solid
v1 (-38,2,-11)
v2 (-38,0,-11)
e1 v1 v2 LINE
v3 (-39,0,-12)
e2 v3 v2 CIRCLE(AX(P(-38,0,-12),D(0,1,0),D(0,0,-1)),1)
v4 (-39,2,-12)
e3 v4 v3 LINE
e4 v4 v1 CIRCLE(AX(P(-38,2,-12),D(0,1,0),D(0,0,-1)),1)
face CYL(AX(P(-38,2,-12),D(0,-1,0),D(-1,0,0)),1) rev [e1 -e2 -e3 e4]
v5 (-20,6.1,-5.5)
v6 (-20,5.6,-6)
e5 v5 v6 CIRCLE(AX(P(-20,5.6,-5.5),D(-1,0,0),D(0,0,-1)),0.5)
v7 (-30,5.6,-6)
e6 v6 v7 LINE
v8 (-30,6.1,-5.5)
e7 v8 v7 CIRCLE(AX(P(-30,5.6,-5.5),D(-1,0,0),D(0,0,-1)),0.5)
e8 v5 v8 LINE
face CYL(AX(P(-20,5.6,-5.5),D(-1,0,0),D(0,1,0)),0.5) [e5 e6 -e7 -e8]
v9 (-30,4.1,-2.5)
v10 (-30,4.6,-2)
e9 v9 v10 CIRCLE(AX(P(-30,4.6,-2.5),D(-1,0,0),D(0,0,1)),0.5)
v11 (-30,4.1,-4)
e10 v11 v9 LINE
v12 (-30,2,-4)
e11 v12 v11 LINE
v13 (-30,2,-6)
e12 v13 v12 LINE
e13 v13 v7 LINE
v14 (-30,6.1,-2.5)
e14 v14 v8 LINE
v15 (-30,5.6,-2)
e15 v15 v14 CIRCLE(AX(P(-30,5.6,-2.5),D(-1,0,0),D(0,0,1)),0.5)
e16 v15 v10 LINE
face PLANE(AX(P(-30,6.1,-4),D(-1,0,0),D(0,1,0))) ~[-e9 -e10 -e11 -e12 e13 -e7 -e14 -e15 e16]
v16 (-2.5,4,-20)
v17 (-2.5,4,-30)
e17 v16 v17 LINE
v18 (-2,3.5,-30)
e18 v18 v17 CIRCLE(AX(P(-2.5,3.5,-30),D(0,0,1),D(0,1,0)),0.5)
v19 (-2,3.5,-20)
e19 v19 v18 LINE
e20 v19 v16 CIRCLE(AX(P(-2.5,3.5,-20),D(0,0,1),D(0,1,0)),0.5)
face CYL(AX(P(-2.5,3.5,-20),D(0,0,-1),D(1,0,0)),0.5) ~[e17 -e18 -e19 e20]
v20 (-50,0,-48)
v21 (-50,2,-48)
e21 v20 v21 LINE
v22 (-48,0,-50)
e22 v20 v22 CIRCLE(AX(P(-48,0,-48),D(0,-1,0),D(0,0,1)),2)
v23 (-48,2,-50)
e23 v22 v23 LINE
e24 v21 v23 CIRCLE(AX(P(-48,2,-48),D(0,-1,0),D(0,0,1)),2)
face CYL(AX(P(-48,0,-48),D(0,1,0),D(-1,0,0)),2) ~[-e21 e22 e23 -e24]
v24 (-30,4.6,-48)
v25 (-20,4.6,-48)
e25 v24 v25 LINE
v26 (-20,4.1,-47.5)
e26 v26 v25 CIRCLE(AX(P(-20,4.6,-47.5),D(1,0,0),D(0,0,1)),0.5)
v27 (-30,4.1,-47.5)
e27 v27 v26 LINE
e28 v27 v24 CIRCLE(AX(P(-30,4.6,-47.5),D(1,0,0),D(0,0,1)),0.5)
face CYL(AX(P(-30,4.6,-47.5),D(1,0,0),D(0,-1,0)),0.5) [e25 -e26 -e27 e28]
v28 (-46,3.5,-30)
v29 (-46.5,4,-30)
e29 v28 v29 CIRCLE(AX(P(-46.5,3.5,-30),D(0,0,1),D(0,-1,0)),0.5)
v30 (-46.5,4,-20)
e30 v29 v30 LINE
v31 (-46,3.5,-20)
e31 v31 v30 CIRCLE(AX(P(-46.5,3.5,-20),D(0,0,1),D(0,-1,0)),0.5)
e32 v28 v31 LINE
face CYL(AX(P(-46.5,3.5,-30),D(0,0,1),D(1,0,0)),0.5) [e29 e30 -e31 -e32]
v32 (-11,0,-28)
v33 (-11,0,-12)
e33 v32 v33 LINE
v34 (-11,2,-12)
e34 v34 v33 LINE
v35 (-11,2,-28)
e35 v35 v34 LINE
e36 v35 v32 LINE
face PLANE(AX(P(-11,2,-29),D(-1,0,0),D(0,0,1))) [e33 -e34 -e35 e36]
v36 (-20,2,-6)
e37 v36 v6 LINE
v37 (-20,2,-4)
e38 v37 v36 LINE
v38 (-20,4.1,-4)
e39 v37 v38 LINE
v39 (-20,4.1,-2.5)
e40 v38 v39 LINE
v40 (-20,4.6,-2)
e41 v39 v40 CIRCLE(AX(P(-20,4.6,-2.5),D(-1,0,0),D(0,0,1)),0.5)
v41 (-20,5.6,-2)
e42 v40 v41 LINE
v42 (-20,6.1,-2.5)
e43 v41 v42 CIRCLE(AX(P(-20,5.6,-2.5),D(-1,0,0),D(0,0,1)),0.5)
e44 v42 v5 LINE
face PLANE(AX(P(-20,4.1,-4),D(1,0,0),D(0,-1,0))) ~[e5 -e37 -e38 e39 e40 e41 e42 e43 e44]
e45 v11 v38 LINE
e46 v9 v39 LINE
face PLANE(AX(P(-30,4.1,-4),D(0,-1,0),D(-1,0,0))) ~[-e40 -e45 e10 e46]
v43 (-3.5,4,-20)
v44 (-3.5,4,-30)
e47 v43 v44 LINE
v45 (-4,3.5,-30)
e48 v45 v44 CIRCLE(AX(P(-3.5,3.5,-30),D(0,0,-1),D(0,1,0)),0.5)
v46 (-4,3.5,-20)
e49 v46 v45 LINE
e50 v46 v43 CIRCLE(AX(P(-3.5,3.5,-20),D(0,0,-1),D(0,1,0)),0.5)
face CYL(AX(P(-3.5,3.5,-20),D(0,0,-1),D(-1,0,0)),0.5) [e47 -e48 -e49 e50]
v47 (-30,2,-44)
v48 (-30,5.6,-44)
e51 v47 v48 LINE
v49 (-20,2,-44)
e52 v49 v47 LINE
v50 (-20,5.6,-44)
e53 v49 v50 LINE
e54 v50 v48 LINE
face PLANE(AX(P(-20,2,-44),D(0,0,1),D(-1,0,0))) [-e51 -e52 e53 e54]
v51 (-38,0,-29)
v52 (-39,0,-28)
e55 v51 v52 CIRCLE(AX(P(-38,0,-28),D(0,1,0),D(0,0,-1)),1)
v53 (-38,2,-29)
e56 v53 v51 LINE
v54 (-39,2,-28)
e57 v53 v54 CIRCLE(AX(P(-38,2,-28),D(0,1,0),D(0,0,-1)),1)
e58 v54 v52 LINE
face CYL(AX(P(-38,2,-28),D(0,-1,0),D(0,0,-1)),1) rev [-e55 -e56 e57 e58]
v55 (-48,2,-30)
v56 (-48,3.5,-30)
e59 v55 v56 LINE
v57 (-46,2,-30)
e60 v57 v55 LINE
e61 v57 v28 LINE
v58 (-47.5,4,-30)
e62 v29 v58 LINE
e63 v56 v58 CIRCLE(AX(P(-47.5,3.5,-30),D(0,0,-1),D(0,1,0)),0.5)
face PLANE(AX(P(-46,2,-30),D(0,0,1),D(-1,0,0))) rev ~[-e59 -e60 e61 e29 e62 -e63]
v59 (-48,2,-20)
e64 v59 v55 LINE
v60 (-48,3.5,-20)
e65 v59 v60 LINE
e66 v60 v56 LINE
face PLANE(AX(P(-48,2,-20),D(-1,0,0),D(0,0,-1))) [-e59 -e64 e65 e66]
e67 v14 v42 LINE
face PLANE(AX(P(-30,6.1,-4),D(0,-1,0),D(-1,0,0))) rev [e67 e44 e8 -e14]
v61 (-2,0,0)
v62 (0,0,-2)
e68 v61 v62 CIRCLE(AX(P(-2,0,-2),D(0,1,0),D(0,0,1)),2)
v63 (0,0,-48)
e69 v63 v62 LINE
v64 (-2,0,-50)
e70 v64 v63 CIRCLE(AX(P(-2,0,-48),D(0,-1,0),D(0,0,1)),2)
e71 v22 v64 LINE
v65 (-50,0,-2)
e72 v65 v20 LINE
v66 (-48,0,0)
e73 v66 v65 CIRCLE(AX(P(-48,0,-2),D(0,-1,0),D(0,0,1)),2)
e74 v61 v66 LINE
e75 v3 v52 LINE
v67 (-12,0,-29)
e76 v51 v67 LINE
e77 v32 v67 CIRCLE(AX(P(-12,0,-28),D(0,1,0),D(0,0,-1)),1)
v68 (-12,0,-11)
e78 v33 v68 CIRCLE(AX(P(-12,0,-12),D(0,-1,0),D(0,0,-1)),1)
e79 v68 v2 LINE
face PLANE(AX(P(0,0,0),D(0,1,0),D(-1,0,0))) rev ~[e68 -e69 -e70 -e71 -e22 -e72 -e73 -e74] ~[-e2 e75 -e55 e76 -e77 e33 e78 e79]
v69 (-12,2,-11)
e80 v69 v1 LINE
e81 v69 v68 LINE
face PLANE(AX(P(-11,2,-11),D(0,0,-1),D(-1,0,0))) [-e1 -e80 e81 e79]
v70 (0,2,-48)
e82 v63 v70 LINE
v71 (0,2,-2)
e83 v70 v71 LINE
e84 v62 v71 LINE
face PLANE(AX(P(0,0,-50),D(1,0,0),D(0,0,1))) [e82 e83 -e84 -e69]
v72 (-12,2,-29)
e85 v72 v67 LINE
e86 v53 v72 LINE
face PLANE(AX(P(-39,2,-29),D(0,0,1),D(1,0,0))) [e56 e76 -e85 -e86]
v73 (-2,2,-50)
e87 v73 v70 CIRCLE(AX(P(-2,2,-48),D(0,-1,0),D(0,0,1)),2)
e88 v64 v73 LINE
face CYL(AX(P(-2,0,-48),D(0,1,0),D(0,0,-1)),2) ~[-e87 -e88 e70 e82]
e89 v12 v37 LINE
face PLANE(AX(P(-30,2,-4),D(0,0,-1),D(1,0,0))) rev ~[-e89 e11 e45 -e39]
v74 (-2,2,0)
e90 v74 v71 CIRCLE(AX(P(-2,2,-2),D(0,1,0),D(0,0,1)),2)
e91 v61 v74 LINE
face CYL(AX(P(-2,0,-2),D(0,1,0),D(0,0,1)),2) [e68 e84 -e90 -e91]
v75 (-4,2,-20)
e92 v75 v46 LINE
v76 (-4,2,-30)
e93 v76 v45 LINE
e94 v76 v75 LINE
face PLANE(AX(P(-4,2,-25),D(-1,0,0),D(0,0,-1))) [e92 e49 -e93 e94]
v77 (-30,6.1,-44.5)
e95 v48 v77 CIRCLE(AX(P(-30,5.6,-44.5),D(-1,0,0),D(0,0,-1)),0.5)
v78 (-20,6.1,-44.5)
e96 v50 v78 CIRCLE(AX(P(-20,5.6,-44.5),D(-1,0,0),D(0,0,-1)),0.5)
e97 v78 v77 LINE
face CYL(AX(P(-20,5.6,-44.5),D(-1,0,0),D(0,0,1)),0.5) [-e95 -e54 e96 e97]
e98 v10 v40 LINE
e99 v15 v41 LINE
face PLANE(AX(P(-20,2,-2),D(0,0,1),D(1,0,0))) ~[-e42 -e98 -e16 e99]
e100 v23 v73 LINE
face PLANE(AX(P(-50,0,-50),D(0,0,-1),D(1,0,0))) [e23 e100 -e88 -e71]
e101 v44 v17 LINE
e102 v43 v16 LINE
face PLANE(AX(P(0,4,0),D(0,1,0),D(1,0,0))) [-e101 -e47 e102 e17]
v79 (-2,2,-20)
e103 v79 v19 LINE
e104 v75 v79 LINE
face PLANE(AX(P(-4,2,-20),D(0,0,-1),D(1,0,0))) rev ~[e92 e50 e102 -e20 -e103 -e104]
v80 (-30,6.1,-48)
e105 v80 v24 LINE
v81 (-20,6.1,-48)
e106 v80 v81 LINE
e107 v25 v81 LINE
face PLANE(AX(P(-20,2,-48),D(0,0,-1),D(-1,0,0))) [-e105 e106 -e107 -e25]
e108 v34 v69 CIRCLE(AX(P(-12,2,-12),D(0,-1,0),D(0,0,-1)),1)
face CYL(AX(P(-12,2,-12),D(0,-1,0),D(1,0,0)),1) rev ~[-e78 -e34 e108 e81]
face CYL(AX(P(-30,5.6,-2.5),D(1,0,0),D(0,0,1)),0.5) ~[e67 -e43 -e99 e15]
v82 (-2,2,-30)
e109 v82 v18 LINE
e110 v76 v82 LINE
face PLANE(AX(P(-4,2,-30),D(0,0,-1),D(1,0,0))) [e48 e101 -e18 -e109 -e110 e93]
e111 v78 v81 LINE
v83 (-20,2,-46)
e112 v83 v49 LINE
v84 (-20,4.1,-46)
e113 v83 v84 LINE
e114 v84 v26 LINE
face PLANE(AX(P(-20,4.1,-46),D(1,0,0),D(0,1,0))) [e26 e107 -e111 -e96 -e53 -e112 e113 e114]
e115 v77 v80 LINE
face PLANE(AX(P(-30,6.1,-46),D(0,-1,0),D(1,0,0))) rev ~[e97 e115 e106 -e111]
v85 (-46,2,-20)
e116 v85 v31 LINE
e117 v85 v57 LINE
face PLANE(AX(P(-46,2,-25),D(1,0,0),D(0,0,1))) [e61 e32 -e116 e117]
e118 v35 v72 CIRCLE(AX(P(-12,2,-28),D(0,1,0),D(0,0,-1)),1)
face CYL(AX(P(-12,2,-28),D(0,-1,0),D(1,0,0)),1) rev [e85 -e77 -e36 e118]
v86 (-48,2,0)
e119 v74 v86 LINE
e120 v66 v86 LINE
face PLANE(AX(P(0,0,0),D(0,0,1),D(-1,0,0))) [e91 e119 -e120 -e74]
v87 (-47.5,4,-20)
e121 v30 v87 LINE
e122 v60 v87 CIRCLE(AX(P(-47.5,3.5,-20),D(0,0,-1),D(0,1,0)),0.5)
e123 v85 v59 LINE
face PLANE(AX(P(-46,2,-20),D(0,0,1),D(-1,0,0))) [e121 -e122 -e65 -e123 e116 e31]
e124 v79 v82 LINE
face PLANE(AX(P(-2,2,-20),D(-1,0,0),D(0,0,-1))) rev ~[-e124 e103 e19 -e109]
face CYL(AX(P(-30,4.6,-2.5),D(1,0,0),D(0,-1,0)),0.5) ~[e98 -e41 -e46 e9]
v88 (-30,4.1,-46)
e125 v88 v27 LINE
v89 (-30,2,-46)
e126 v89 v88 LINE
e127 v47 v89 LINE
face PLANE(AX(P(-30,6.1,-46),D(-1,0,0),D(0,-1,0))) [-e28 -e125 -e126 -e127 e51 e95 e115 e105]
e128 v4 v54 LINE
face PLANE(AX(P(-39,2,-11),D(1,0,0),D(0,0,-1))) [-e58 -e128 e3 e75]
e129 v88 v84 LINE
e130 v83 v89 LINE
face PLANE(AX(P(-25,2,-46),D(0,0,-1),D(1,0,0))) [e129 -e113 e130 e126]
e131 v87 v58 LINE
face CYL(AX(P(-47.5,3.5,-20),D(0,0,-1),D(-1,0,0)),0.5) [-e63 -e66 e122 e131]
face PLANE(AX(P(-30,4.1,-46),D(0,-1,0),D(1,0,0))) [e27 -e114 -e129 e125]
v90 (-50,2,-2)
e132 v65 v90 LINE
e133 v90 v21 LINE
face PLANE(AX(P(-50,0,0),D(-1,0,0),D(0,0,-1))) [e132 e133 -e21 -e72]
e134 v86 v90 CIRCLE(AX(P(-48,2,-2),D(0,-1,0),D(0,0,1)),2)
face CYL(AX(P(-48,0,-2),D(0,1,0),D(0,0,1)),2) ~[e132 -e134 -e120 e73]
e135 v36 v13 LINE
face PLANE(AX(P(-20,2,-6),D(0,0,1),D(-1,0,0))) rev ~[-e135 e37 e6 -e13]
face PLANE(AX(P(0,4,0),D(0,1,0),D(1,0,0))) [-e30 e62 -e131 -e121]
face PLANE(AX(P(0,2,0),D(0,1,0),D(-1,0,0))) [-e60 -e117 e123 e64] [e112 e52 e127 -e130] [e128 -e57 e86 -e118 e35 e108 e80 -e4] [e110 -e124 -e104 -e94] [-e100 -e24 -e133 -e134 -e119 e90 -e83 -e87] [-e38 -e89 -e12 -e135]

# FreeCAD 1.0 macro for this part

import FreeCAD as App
import Part
import Sketcher

V = App.Vector
Q = App.Units.Quantity


def edges_at(feature, points):
    """Names of the edges that pass closest to the given points."""
    edges = feature.Shape.Edges
    near = lambda p: min(range(len(edges)), key=lambda i: edges[i].distToShape(Part.Vertex(*p))[0])
    return sorted({f"Edge{near(p) + 1}" for p in points})


def add_polygon(sketch, points):
    """Adds a closed chain of lines whose ends are joined by coincident constraints."""
    first, n = sketch.GeometryCount, len(points)
    for a, b in zip(points, points[1:] + points[:1]):
        sketch.addGeometry(Part.LineSegment(App.Vector(*a, 0), App.Vector(*b, 0)), False)
    for i in range(n):
        sketch.addConstraint(Sketcher.Constraint("Coincident", first + i, 2, first + (i + 1) % n, 1))

doc = App.newDocument("Part")
params = doc.addObject("Spreadsheet::Sheet", "Params")
for row, (alias, value) in enumerate([
    ("sketch1_width", "50 mm"),
    ("pad1_length", "2 mm"),
    ("fillet_radius", "2 mm"),
    ("sketch2_width", "2 mm"),
    ("sketch2_height", "10 mm"),
    ("pad2_length", "2 mm"),
    ("sketch3_width", "10 mm"),
    ("sketch3_height", "2 mm"),
    ("pad3_length", "4.1 mm"),
    ("sketch4_width", "10 mm"),
    ("sketch4_height", "2 mm"),
    ("pad4_length", "2 mm"),
    ("fillet2_radius", "0.5 mm"),
    ("fillet3_radius", "0.5 mm"),
    ("fillet4_radius", "0.5 mm"),
    ("sketch5_width", "28 mm"),
    ("sketch5_height", "18 mm"),
    ("pocket1_length", "2 mm"),
    ("fillet5_radius", "1 mm"),
], start=1):
    params.set(f"A{row}", alias)
    params.set(f"B{row}", "=" + value)
    params.setAlias(f"B{row}", alias)

body = doc.addObject("PartDesign::Body", "Body")

# Sketch on XZ plane
sketch1 = body.newObject("Sketcher::SketchObject", "Sketch")
sketch1.AttachmentSupport = (doc.getObject("XZ_Plane"), [""])
sketch1.MapMode = "FlatFace"
add_polygon(sketch1, [(-50, 0), (0, 0), (0, -50), (-50, -50)])  # lines 0-3
sketch1.addConstraint([
    Sketcher.Constraint("Horizontal", 0),
    Sketcher.Constraint("Vertical", 1),
    Sketcher.Constraint("Horizontal", 2),
    Sketcher.Constraint("Vertical", 3),
    Sketcher.Constraint("Coincident", 0, 2, -1, 1),
    Sketcher.Constraint("Equal", 2, 1),
    Sketcher.Constraint("DistanceX", 0, 1, 0, 2, Q("50 mm")),
])
sketch1.setExpression("Constraints[10]", "Params.sketch1_width")
pad1 = body.newObject("PartDesign::Pad", "Pad")
pad1.Profile = sketch1
pad1.setExpression("Length", "Params.pad1_length")
pad1.Reversed = True
doc.recompute()

fillet = body.newObject("PartDesign::Fillet", "Fillet")
fillet.Base = (pad1, edges_at(pad1, [
    (0, 1, 0),
    (0, 1, -50),
    (-50, 1, 0),
    (-50, 1, -50),
]))
fillet.setExpression("Radius", "Params.fillet_radius")

# Sketch on XZ plane
sketch2 = body.newObject("Sketcher::SketchObject", "Sketch001")
sketch2.AttachmentSupport = (doc.getObject("XZ_Plane"), [""])
sketch2.MapMode = "FlatFace"
sketch2.AttachmentOffset = App.Placement(V(0, 0, -2), App.Rotation())
add_polygon(sketch2, [(-46, -20), (-46, -30), (-48, -30), (-48, -20)])  # lines 0-3
add_polygon(sketch2, [(-4, -30), (-4, -20), (-2, -20), (-2, -30)])  # lines 4-7
sketch2.addConstraint([
    Sketcher.Constraint("Vertical", 0),
    Sketcher.Constraint("Horizontal", 1),
    Sketcher.Constraint("Vertical", 2),
    Sketcher.Constraint("Horizontal", 3),
    Sketcher.Constraint("Vertical", 4),
    Sketcher.Constraint("Horizontal", 5),
    Sketcher.Constraint("Vertical", 6),
    Sketcher.Constraint("Horizontal", 7),
    Sketcher.Constraint("Horizontal", 3, 2, 4, 2),
    Sketcher.Constraint("Horizontal", 1, 2, 6, 2),
    Sketcher.Constraint("Equal", 3, 5),
    Sketcher.Constraint("DistanceX", 1, 2, 1, 1, Q("2 mm")),
    Sketcher.Constraint("DistanceY", 0, 2, 0, 1, Q("10 mm")),
    Sketcher.Constraint("DistanceX", 4, 2, -1, 1, Q("4 mm")),
    Sketcher.Constraint("DistanceX", 0, 2, -1, 1, Q("46 mm")),
    Sketcher.Constraint("DistanceY", 0, 2, -1, 1, Q("30 mm")),
])
sketch2.setExpression("Constraints[19]", "Params.sketch2_width")
sketch2.setExpression("Constraints[20]", "Params.sketch2_height")
pad2 = body.newObject("PartDesign::Pad", "Pad001")
pad2.Profile = sketch2
pad2.setExpression("Length", "Params.pad2_length")
pad2.Reversed = True

# Sketch on XZ plane
sketch3 = body.newObject("Sketcher::SketchObject", "Sketch002")
sketch3.AttachmentSupport = (doc.getObject("XZ_Plane"), [""])
sketch3.MapMode = "FlatFace"
sketch3.AttachmentOffset = App.Placement(V(0, 0, -2), App.Rotation())
add_polygon(sketch3, [(-30, -4), (-20, -4), (-20, -6), (-30, -6)])  # lines 0-3
add_polygon(sketch3, [(-20, -46), (-30, -46), (-30, -44), (-20, -44)])  # lines 4-7
sketch3.addConstraint([
    Sketcher.Constraint("Horizontal", 0),
    Sketcher.Constraint("Vertical", 1),
    Sketcher.Constraint("Horizontal", 2),
    Sketcher.Constraint("Vertical", 3),
    Sketcher.Constraint("Horizontal", 4),
    Sketcher.Constraint("Vertical", 5),
    Sketcher.Constraint("Horizontal", 6),
    Sketcher.Constraint("Vertical", 7),
    Sketcher.Constraint("Vertical", 3, 2, 4, 2),
    Sketcher.Constraint("Vertical", 1, 2, 6, 2),
    Sketcher.Constraint("Equal", 3, 5),
    Sketcher.Constraint("DistanceX", 0, 1, 0, 2, Q("10 mm")),
    Sketcher.Constraint("DistanceY", 1, 2, 1, 1, Q("2 mm")),
    Sketcher.Constraint("DistanceY", 0, 2, -1, 1, Q("4 mm")),
    Sketcher.Constraint("DistanceX", 0, 2, -1, 1, Q("20 mm")),
    Sketcher.Constraint("DistanceY", 4, 2, -1, 1, Q("46 mm")),
])
sketch3.setExpression("Constraints[19]", "Params.sketch3_width")
sketch3.setExpression("Constraints[20]", "Params.sketch3_height")
pad3 = body.newObject("PartDesign::Pad", "Pad002")
pad3.Profile = sketch3
pad3.setExpression("Length", "Params.pad3_length")
pad3.Reversed = True

# Sketch on XY plane
sketch4 = body.newObject("Sketcher::SketchObject", "Sketch003")
sketch4.AttachmentSupport = (doc.getObject("XY_Plane"), [""])
sketch4.MapMode = "FlatFace"
sketch4.AttachmentOffset = App.Placement(V(0, 0, -46), App.Rotation())
add_polygon(sketch4, [(-30, 4.1), (-30, 6.1), (-20, 6.1), (-20, 4.1)])  # lines 0-3
sketch4.addConstraint([
    Sketcher.Constraint("Vertical", 0),
    Sketcher.Constraint("Horizontal", 1),
    Sketcher.Constraint("Vertical", 2),
    Sketcher.Constraint("Horizontal", 3),
    Sketcher.Constraint("DistanceX", 1, 1, 1, 2, Q("10 mm")),
    Sketcher.Constraint("DistanceY", 0, 1, 0, 2, Q("2 mm")),
    Sketcher.Constraint("DistanceX", 0, 2, -1, 1, Q("30 mm")),
    Sketcher.Constraint("DistanceY", -1, 1, 0, 2, Q("6.1 mm")),
])
sketch4.setExpression("Constraints[8]", "Params.sketch4_width")
sketch4.setExpression("Constraints[9]", "Params.sketch4_height")
pad4 = body.newObject("PartDesign::Pad", "Pad003")
pad4.Profile = sketch4
pad4.setExpression("Length", "Params.pad4_length")
pad4.Reversed = True
doc.recompute()

fillet2 = body.newObject("PartDesign::Fillet", "Fillet001")
fillet2.Base = (pad4, edges_at(pad4, [(-25, 4.1, -48)]))
fillet2.setExpression("Radius", "Params.fillet2_radius")
doc.recompute()

datumplane = body.newObject("PartDesign::Plane", "DatumPlane")
datumplane.AttachmentSupport = (doc.getObject("XY_Plane"), [""])
datumplane.MapMode = "FlatFace"
datumplane.AttachmentOffset = App.Placement(V(0, 0, -25), App.Rotation())
mirrored = body.newObject("PartDesign::Mirrored", "Mirrored")
mirrored.Originals = [pad4]
mirrored.MirrorPlane = (datumplane, [""])
body.Tip = mirrored
doc.recompute()

fillet3 = body.newObject("PartDesign::Fillet", "Fillet002")
fillet3.Base = (mirrored, edges_at(mirrored, [(-25, 4.1, -2)]))
fillet3.setExpression("Radius", "Params.fillet3_radius")
doc.recompute()

fillet4 = body.newObject("PartDesign::Fillet", "Fillet003")
fillet4.Base = (fillet3, edges_at(fillet3, [
    (-2, 4, -25),
    (-4, 4, -25),
    (-46, 4, -25),
    (-48, 4, -25),
    (-25, 6.1, -2),
    (-25, 6.1, -6),
    (-25, 6.1, -44),
]))
fillet4.setExpression("Radius", "Params.fillet4_radius")

# Sketch on XZ plane
sketch5 = body.newObject("Sketcher::SketchObject", "Sketch004")
sketch5.AttachmentSupport = (doc.getObject("XZ_Plane"), [""])
sketch5.MapMode = "FlatFace"
sketch5.AttachmentOffset = App.Placement(V(0, 0, -2), App.Rotation())
add_polygon(sketch5, [(-39, -11), (-11, -11), (-11, -29), (-39, -29)])  # lines 0-3
sketch5.addConstraint([
    Sketcher.Constraint("Horizontal", 0),
    Sketcher.Constraint("Vertical", 1),
    Sketcher.Constraint("Horizontal", 2),
    Sketcher.Constraint("Vertical", 3),
    Sketcher.Constraint("DistanceX", 0, 1, 0, 2, Q("28 mm")),
    Sketcher.Constraint("DistanceY", 1, 2, 1, 1, Q("18 mm")),
    Sketcher.Constraint("DistanceX", 0, 2, -1, 1, Q("11 mm")),
    Sketcher.Constraint("DistanceY", 0, 2, -1, 1, Q("11 mm")),
])
sketch5.setExpression("Constraints[8]", "Params.sketch5_width")
sketch5.setExpression("Constraints[9]", "Params.sketch5_height")
pocket1 = body.newObject("PartDesign::Pocket", "Pocket")
pocket1.Profile = sketch5
pocket1.setExpression("Length", "Params.pocket1_length")
pocket1.Reversed = True
doc.recompute()

fillet5 = body.newObject("PartDesign::Fillet", "Fillet004")
fillet5.Base = (pocket1, edges_at(pocket1, [
    (-39, 1, -11),
    (-11, 1, -11),
    (-11, 1, -29),
    (-39, 1, -29),
]))
fillet5.setExpression("Radius", "Params.fillet5_radius")

doc.recompute()
